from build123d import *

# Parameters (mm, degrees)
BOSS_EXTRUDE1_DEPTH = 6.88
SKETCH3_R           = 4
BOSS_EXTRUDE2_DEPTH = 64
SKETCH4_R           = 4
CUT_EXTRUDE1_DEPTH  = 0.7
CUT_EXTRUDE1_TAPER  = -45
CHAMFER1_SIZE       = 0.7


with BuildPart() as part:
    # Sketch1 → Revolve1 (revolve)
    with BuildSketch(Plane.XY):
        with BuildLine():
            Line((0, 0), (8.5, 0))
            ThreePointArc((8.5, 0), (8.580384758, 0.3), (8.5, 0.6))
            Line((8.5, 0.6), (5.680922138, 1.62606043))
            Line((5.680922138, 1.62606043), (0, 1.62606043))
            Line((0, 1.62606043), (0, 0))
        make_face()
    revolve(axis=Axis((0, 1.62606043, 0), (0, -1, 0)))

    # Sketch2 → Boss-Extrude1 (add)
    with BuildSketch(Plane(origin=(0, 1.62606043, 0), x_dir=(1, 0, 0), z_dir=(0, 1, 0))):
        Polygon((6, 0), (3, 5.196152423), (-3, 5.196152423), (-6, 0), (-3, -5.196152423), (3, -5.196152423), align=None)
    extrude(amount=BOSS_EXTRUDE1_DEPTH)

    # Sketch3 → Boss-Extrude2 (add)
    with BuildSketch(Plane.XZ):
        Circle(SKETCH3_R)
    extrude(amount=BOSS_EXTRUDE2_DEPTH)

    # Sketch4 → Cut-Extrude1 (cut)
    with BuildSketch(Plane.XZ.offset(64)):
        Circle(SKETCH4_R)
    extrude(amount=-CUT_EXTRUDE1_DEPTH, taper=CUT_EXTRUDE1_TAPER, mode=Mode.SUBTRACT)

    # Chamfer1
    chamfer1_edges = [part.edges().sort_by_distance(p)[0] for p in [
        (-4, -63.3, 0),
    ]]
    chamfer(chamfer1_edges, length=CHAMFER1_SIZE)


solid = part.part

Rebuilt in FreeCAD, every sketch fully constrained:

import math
import FreeCAD as App
import Part
import Sketcher
Q = App.Units.Quantity


def edges_at(feature, points):
    """Names of the edges that pass closest to the given points."""
    edges = feature.Shape.Edges
    near = lambda p: min(range(len(edges)), key=lambda i: edges[i].distToShape(Part.Vertex(*p))[0])
    return sorted({f"Edge{near(p) + 1}" for p in points})


def add_polygon(sketch, points):
    """Adds a closed chain of lines whose ends are joined by coincident constraints."""
    first, n = sketch.GeometryCount, len(points)
    for a, b in zip(points, points[1:] + points[:1]):
        sketch.addGeometry(Part.LineSegment(App.Vector(*a, 0), App.Vector(*b, 0)), False)
    for i in range(n):
        sketch.addConstraint(Sketcher.Constraint("Coincident", first + i, 2, first + (i + 1) % n, 1))

doc = App.newDocument("Part")
body = doc.addObject("PartDesign::Body", "Body")

sketch1 = doc.addObject("Sketcher::SketchObject", "Sketch")
body.addObject(sketch1)
sketch1.AttachmentSupport = (doc.XY_Plane, [""])
sketch1.MapMode = "FlatFace"
sketch1.addGeometry([
    Part.LineSegment(App.Vector(0, 0, 0), App.Vector(8.5, 0, 0)),
    Part.ArcOfCircle(Part.Circle(App.Vector(8, 0.3, 0), App.Vector(0, 0, 1), 0.6), math.radians(-30), math.radians(30)),
    Part.LineSegment(App.Vector(8.5, 0.6, 0), App.Vector(5.7, 1.6, 0)),
    Part.LineSegment(App.Vector(5.7, 1.6, 0), App.Vector(0, 1.6, 0)),
    Part.LineSegment(App.Vector(0, 1.6, 0), App.Vector(0, 0, 0)),
], False)
sketch1.addConstraint([
    Sketcher.Constraint("Coincident", 0, 2, 1, 1),
    Sketcher.Constraint("Coincident", 1, 2, 2, 1),
    Sketcher.Constraint("Coincident", 2, 2, 3, 1),
    Sketcher.Constraint("Coincident", 3, 2, 4, 1),
    Sketcher.Constraint("Coincident", 4, 2, 0, 1),
    Sketcher.Constraint("Horizontal", 0),
    Sketcher.Constraint("Horizontal", 3),
    Sketcher.Constraint("Vertical", 4),
    Sketcher.Constraint("Coincident", 4, 2, -1, 1),
    Sketcher.Constraint("Vertical", 0, 2, 1, 2),
    Sketcher.Constraint("Radius", 1, Q("0.6 mm")),
    Sketcher.Constraint("Angle", 2, Q("160 deg")),
    Sketcher.Constraint("Distance", 2, Q("3 mm")),
    Sketcher.Constraint("DistanceX", 0, 1, 0, 2, Q("8.5 mm")),
    Sketcher.Constraint("DistanceY", -1, 1, 1, 3, Q("0.3 mm")),
])
revolution = doc.addObject("PartDesign::Revolution", "Revolution")
body.addObject(revolution)
revolution.Profile = sketch1
revolution.ReferenceAxis = (sketch1, ["V_Axis"])
revolution.Angle = 360

sketch2 = doc.addObject("Sketcher::SketchObject", "Sketch001")
body.addObject(sketch2)
sketch2.AttachmentSupport = (doc.XZ_Plane, [""])
sketch2.MapMode = "FlatFace"
sketch2.AttachmentOffset = App.Placement(App.Vector(0, 0, -1.62606), App.Rotation())
add_polygon(sketch2, [(6, 0), (3, -5), (-3, -5), (-6, 0), (-3, 5), (3, 5)])
sketch2.addConstraint([
    Sketcher.Constraint("Horizontal", 1),
    Sketcher.Constraint("Horizontal", 4),
    Sketcher.Constraint("Symmetric", 0, 2, 3, 2, -1, 1),
    Sketcher.Constraint("Symmetric", 2, 2, 5, 2, -1, 1),
    Sketcher.Constraint("PointOnObject", 2, 2, -1),
    Sketcher.Constraint("Parallel", 2, 5),
    Sketcher.Constraint("Vertical", 1, 2, 3, 2),
    Sketcher.Constraint("DistanceX", 1, 2, 1, 1, Q("6 mm")),
    Sketcher.Constraint("Angle", 0, Q("-120 deg")),
    Sketcher.Constraint("Distance", 0, Q("6 mm")),
])
pad1 = doc.addObject("PartDesign::Pad", "Pad")
body.addObject(pad1)
pad1.Profile = sketch2
pad1.Length = 6.88
pad1.Reversed = True

sketch3 = doc.addObject("Sketcher::SketchObject", "Sketch002")
body.addObject(sketch3)
sketch3.AttachmentSupport = (doc.XZ_Plane, [""])
sketch3.MapMode = "FlatFace"
sketch3.addGeometry(Part.Circle(App.Vector(0, 0, 0), App.Vector(0, 0, 1), 4), False)
sketch3.addConstraint([
    Sketcher.Constraint("Coincident", 0, 3, -1, 1),
    Sketcher.Constraint("Diameter", 0, Q("8 mm")),
])
pad2 = doc.addObject("PartDesign::Pad", "Pad001")
body.addObject(pad2)
pad2.Profile = sketch3
pad2.Length = 64

sketch4 = doc.addObject("Sketcher::SketchObject", "Sketch003")
body.addObject(sketch4)
sketch4.AttachmentSupport = (doc.XZ_Plane, [""])
sketch4.MapMode = "FlatFace"
sketch4.AttachmentOffset = App.Placement(App.Vector(0, 0, 64), App.Rotation())
sketch4.addGeometry(Part.Circle(App.Vector(0, 0, 0), App.Vector(0, 0, 1), 4), False)
sketch4.addConstraint([
    Sketcher.Constraint("Coincident", 0, 3, -1, 1),
    Sketcher.Constraint("Diameter", 0, Q("8 mm")),
])
pocket1 = doc.addObject("PartDesign::Pocket", "Pocket")
body.addObject(pocket1)
pocket1.Profile = sketch4
pocket1.Length = 0.7
pocket1.TaperAngle = 45
doc.recompute()

chamfer = doc.addObject("PartDesign::Chamfer", "Chamfer")
body.addObject(chamfer)
chamfer.Base = (pocket1, edges_at(pocket1, [(-4, -63.3, 0)]))
chamfer.Size = 0.7

doc.recompute()
